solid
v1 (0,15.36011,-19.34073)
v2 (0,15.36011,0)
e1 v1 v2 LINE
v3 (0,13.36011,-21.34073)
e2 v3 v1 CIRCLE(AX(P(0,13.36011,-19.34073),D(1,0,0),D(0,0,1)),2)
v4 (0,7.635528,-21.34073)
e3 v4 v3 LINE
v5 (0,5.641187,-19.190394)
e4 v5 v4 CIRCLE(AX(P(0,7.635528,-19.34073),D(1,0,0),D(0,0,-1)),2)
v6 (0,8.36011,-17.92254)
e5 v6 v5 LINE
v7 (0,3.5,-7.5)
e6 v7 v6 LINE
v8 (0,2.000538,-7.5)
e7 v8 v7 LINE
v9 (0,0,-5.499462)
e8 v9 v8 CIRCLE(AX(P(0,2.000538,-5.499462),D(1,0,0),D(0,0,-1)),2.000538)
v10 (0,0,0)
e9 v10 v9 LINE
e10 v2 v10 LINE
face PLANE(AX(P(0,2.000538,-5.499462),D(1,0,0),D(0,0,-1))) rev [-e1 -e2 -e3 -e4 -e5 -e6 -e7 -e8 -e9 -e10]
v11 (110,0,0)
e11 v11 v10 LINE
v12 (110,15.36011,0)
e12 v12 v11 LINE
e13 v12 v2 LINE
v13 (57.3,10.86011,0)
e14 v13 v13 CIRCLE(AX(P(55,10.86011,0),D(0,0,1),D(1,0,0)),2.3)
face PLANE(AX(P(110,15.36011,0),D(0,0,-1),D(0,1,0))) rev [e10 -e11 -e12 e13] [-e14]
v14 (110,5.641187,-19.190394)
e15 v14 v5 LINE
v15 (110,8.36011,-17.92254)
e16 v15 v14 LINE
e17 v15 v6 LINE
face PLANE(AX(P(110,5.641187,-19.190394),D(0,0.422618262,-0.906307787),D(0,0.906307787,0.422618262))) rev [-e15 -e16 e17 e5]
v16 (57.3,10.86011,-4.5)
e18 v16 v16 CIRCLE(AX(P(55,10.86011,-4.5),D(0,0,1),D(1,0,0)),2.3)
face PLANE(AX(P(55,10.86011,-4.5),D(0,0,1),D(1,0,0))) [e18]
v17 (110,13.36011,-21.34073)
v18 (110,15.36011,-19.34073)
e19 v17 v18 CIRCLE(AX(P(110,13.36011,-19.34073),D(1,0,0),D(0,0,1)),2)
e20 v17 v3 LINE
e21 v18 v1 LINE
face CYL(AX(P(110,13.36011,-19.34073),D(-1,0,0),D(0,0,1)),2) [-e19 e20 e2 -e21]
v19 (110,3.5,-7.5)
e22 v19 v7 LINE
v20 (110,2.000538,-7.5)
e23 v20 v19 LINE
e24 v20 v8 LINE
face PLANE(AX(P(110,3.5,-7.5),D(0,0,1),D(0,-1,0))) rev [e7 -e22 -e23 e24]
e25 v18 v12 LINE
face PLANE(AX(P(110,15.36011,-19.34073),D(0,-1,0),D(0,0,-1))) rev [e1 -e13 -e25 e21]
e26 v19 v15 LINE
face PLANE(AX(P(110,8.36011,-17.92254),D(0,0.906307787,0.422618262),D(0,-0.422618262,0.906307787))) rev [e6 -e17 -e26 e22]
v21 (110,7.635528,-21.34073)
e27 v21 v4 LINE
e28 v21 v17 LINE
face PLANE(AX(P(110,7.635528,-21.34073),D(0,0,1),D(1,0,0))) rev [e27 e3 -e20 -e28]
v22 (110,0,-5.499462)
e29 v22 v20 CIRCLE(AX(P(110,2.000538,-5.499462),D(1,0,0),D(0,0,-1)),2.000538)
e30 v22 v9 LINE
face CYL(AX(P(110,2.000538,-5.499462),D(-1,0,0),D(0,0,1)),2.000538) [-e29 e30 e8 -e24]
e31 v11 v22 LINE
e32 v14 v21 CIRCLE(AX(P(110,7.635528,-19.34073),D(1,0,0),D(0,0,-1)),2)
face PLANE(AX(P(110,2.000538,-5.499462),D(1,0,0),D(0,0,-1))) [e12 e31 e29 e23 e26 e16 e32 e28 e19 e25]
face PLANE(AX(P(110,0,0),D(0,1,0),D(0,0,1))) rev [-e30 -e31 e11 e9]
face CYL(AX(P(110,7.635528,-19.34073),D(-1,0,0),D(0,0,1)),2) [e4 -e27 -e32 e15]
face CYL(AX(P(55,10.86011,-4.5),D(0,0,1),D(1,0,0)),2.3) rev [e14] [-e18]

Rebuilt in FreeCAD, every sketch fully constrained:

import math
import FreeCAD as App
import Part
import Sketcher

V = App.Vector
Q = App.Units.Quantity

doc = App.newDocument("Part")
body = doc.addObject("PartDesign::Body", "Body")

# Sketch on YZ plane
sketch1 = doc.addObject("Sketcher::SketchObject", "Sketch")
body.addObject(sketch1)
sketch1.AttachmentSupport = (doc.YZ_Plane, [""])
sketch1.MapMode = "FlatFace"
sketch1.addGeometry([
    Part.LineSegment(V(0, 0, 0), V(0, -5.5, 0)),  # 0
    Part.ArcOfCircle(Part.Circle(V(2, -5.5, 0), V(0, 0, 1), 2), math.radians(180), math.radians(270)),  # 1
    Part.LineSegment(V(2, -7.5, 0), V(3.5, -7.5, 0)),  # 2
    Part.LineSegment(V(3.5, -7.5, 0), V(8.4, -17.9, 0)),  # 3
    Part.LineSegment(V(8.4, -17.9, 0), V(5.6, -19.2, 0)),  # 4
    Part.ArcOfCircle(Part.Circle(V(7.6, -19.3, 0), V(0, 0, 1), 2), math.radians(176), math.radians(270)),  # 5
    Part.LineSegment(V(7.6, -21.3, 0), V(13.4, -21.3, 0)),  # 6
    Part.ArcOfCircle(Part.Circle(V(13.4, -19.3, 0), V(0, 0, 1), 2), math.radians(-90), math.radians(0)),  # 7
    Part.LineSegment(V(15.4, -19.3, 0), V(15.4, 0, 0)),  # 8
    Part.LineSegment(V(15.4, 0, 0), V(0, 0, 0)),  # 9
], False)
sketch1.addConstraint([
    Sketcher.Constraint("Tangent", 0, 2, 1, 1),
    Sketcher.Constraint("Tangent", 1, 2, 2, 1),
    Sketcher.Constraint("Coincident", 2, 2, 3, 1),
    Sketcher.Constraint("Coincident", 3, 2, 4, 1),
    Sketcher.Constraint("Coincident", 4, 2, 5, 1),
    Sketcher.Constraint("Tangent", 5, 2, 6, 1),
    Sketcher.Constraint("Tangent", 6, 2, 7, 1),
    Sketcher.Constraint("Tangent", 7, 2, 8, 1),
    Sketcher.Constraint("Coincident", 8, 2, 9, 1),
    Sketcher.Constraint("Coincident", 9, 2, 0, 1),
    Sketcher.Constraint("Vertical", 0),
    Sketcher.Constraint("Horizontal", 2),
    Sketcher.Constraint("Horizontal", 6),
    Sketcher.Constraint("Vertical", 8),
    Sketcher.Constraint("Horizontal", 9),
    Sketcher.Constraint("Coincident", 9, 2, -1, 1),
    Sketcher.Constraint("Equal", 5, 7),
    Sketcher.Constraint("Perpendicular", 3, 4),
    Sketcher.Constraint("Radius", 5, 2.0),
    Sketcher.Constraint("Angle", 3, Q("-65 deg")),
    Sketcher.Constraint("Distance", 4, 3.0),
    Sketcher.Constraint("DistanceX", 3, 2, 7, 3, 5.0),
    Sketcher.Constraint("Distance", 3, 11.5),
    Sketcher.Constraint("DistanceY", 1, 2, -1, 1, 7.5),
    Sketcher.Constraint("DistanceX", -1, 1, 2, 2, 3.5),
    Sketcher.Constraint("Radius", 1, 2.000538),
    Sketcher.Constraint("DistanceX", 6, 1, 6, 2, 5.724582),
])
pad1 = doc.addObject("PartDesign::Pad", "Pad")
body.addObject(pad1)
pad1.Profile = sketch1
pad1.Length = 110

# Sketch on XY plane
sketch2 = doc.addObject("Sketcher::SketchObject", "Sketch001")
body.addObject(sketch2)
sketch2.AttachmentSupport = (doc.XY_Plane, [""])
sketch2.MapMode = "FlatFace"
sketch2.addGeometry(Part.Circle(V(55, 10.9, 0), V(0, 0, 1), 2.3), False)
sketch2.addConstraint([
    Sketcher.Constraint("Diameter", 0, 4.6),
    Sketcher.Constraint("DistanceX", -1, 1, 0, 3, 55.0),
    Sketcher.Constraint("DistanceY", -1, 1, 0, 3, 10.86011),
])
pocket1 = doc.addObject("PartDesign::Pocket", "Pocket")
body.addObject(pocket1)
pocket1.Profile = sketch2
pocket1.Length = 4.5

doc.recompute()
